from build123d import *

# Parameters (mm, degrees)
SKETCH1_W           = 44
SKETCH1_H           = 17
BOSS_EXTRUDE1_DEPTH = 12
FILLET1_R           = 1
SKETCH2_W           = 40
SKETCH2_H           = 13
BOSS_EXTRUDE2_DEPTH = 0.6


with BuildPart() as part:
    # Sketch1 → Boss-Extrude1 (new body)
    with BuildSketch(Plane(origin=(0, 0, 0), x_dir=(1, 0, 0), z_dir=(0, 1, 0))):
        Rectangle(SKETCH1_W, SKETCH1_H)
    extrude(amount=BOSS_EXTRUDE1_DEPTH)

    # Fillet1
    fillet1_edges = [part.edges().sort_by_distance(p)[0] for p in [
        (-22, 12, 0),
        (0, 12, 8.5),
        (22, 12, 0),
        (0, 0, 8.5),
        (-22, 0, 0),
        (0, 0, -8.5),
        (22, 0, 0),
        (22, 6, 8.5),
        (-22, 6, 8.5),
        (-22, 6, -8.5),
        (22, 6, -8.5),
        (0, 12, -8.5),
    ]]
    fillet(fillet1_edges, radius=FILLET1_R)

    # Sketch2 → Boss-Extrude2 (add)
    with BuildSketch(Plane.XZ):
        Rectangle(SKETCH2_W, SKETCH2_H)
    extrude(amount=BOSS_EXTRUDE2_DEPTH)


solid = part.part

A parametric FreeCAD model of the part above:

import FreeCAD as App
import Part
import Sketcher
from FreeCAD import Vector
Q = App.Units.Quantity

doc = App.newDocument("Part")
body = doc.addObject("PartDesign::Body", "Body")

sketch1 = doc.addObject("Sketcher::SketchObject", "Sketch")
body.addObject(sketch1)
sketch1.AttachmentSupport = (doc.XZ_Plane, [""])
sketch1.MapMode = "FlatFace"
sketch1.addGeometry([
    Part.LineSegment(Vector(-22, -8, 0), Vector(-22, 8, 0)),
    Part.LineSegment(Vector(-22, 8, 0), Vector(22, 8, 0)),
    Part.LineSegment(Vector(22, 8, 0), Vector(22, -8, 0)),
    Part.LineSegment(Vector(22, -8, 0), Vector(-22, -8, 0)),
], False)
sketch1.addConstraint([
    Sketcher.Constraint("Coincident", 0, 2, 1, 1),
    Sketcher.Constraint("Coincident", 1, 2, 2, 1),
    Sketcher.Constraint("Coincident", 2, 2, 3, 1),
    Sketcher.Constraint("Coincident", 3, 2, 0, 1),
    Sketcher.Constraint("Vertical", 0),
    Sketcher.Constraint("Horizontal", 1),
    Sketcher.Constraint("Vertical", 2),
    Sketcher.Constraint("Horizontal", 3),
    Sketcher.Constraint("Symmetric", 0, 2, 2, 2, -1, 1),
    Sketcher.Constraint("DistanceX", 1, 1, 1, 2, Q("44 mm")),
    Sketcher.Constraint("DistanceY", 0, 1, 0, 2, Q("17 mm")),
])
pad1 = doc.addObject("PartDesign::Pad", "Pad")
body.addObject(pad1)
pad1.Profile = sketch1
pad1.Length = 12
pad1.Reversed = True
doc.recompute()

fillet = doc.addObject("PartDesign::Fillet", "Fillet")
body.addObject(fillet)
fillet.Base = (pad1, ["Edge1"])
fillet.UseAllEdges = True
fillet.Radius = 1

sketch2 = doc.addObject("Sketcher::SketchObject", "Sketch001")
body.addObject(sketch2)
sketch2.AttachmentSupport = (doc.XZ_Plane, [""])
sketch2.MapMode = "FlatFace"
sketch2.addGeometry([
    Part.LineSegment(Vector(-20, 6, 0), Vector(-20, -6, 0)),
    Part.LineSegment(Vector(-20, -6, 0), Vector(20, -6, 0)),
    Part.LineSegment(Vector(20, -6, 0), Vector(20, 6, 0)),
    Part.LineSegment(Vector(20, 6, 0), Vector(-20, 6, 0)),
], False)
sketch2.addConstraint([
    Sketcher.Constraint("Coincident", 0, 2, 1, 1),
    Sketcher.Constraint("Coincident", 1, 2, 2, 1),
    Sketcher.Constraint("Coincident", 2, 2, 3, 1),
    Sketcher.Constraint("Coincident", 3, 2, 0, 1),
    Sketcher.Constraint("Vertical", 0),
    Sketcher.Constraint("Horizontal", 1),
    Sketcher.Constraint("Vertical", 2),
    Sketcher.Constraint("Horizontal", 3),
    Sketcher.Constraint("Symmetric", 0, 2, 2, 2, -1, 1),
    Sketcher.Constraint("DistanceX", 1, 1, 1, 2, Q("40 mm")),
    Sketcher.Constraint("DistanceY", 0, 2, 0, 1, Q("13 mm")),
])
pad2 = doc.addObject("PartDesign::Pad", "Pad001")
body.addObject(pad2)
pad2.Profile = sketch2
pad2.Length = 0.6

doc.recompute()
